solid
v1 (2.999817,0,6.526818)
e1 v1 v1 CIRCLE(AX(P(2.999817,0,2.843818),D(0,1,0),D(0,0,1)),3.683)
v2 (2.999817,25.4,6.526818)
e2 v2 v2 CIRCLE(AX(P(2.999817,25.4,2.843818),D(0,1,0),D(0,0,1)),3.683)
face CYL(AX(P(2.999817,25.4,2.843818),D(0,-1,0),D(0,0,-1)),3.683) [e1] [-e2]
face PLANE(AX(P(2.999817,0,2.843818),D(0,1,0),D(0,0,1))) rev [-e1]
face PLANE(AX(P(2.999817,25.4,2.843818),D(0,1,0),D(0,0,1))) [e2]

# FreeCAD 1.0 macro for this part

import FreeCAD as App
import Part
import Sketcher
Q = App.Units.Quantity

doc = App.newDocument("Part")
body = doc.addObject("PartDesign::Body", "Body")

sketch1 = body.newObject("Sketcher::SketchObject", "Sketch")
sketch1.AttachmentSupport = (doc.getObject("XZ_Plane"), [""])
sketch1.MapMode = "FlatFace"
sketch1.addGeometry(Part.Circle(App.Vector(3, 2.8, 0), App.Vector(0, 0, 1), 3.7), False)
sketch1.addConstraint([
    Sketcher.Constraint("Diameter", 0, Q("0.29 in")),
    Sketcher.Constraint("DistanceY", -1, 1, 0, 3, 2.843818),
    Sketcher.Constraint("DistanceX", -1, 1, 0, 3, 2.999817),
])
pad1 = body.newObject("PartDesign::Pad", "Pad")
pad1.Profile = sketch1
pad1.Length = Q("1 in")
pad1.Reversed = True

doc.recompute()
